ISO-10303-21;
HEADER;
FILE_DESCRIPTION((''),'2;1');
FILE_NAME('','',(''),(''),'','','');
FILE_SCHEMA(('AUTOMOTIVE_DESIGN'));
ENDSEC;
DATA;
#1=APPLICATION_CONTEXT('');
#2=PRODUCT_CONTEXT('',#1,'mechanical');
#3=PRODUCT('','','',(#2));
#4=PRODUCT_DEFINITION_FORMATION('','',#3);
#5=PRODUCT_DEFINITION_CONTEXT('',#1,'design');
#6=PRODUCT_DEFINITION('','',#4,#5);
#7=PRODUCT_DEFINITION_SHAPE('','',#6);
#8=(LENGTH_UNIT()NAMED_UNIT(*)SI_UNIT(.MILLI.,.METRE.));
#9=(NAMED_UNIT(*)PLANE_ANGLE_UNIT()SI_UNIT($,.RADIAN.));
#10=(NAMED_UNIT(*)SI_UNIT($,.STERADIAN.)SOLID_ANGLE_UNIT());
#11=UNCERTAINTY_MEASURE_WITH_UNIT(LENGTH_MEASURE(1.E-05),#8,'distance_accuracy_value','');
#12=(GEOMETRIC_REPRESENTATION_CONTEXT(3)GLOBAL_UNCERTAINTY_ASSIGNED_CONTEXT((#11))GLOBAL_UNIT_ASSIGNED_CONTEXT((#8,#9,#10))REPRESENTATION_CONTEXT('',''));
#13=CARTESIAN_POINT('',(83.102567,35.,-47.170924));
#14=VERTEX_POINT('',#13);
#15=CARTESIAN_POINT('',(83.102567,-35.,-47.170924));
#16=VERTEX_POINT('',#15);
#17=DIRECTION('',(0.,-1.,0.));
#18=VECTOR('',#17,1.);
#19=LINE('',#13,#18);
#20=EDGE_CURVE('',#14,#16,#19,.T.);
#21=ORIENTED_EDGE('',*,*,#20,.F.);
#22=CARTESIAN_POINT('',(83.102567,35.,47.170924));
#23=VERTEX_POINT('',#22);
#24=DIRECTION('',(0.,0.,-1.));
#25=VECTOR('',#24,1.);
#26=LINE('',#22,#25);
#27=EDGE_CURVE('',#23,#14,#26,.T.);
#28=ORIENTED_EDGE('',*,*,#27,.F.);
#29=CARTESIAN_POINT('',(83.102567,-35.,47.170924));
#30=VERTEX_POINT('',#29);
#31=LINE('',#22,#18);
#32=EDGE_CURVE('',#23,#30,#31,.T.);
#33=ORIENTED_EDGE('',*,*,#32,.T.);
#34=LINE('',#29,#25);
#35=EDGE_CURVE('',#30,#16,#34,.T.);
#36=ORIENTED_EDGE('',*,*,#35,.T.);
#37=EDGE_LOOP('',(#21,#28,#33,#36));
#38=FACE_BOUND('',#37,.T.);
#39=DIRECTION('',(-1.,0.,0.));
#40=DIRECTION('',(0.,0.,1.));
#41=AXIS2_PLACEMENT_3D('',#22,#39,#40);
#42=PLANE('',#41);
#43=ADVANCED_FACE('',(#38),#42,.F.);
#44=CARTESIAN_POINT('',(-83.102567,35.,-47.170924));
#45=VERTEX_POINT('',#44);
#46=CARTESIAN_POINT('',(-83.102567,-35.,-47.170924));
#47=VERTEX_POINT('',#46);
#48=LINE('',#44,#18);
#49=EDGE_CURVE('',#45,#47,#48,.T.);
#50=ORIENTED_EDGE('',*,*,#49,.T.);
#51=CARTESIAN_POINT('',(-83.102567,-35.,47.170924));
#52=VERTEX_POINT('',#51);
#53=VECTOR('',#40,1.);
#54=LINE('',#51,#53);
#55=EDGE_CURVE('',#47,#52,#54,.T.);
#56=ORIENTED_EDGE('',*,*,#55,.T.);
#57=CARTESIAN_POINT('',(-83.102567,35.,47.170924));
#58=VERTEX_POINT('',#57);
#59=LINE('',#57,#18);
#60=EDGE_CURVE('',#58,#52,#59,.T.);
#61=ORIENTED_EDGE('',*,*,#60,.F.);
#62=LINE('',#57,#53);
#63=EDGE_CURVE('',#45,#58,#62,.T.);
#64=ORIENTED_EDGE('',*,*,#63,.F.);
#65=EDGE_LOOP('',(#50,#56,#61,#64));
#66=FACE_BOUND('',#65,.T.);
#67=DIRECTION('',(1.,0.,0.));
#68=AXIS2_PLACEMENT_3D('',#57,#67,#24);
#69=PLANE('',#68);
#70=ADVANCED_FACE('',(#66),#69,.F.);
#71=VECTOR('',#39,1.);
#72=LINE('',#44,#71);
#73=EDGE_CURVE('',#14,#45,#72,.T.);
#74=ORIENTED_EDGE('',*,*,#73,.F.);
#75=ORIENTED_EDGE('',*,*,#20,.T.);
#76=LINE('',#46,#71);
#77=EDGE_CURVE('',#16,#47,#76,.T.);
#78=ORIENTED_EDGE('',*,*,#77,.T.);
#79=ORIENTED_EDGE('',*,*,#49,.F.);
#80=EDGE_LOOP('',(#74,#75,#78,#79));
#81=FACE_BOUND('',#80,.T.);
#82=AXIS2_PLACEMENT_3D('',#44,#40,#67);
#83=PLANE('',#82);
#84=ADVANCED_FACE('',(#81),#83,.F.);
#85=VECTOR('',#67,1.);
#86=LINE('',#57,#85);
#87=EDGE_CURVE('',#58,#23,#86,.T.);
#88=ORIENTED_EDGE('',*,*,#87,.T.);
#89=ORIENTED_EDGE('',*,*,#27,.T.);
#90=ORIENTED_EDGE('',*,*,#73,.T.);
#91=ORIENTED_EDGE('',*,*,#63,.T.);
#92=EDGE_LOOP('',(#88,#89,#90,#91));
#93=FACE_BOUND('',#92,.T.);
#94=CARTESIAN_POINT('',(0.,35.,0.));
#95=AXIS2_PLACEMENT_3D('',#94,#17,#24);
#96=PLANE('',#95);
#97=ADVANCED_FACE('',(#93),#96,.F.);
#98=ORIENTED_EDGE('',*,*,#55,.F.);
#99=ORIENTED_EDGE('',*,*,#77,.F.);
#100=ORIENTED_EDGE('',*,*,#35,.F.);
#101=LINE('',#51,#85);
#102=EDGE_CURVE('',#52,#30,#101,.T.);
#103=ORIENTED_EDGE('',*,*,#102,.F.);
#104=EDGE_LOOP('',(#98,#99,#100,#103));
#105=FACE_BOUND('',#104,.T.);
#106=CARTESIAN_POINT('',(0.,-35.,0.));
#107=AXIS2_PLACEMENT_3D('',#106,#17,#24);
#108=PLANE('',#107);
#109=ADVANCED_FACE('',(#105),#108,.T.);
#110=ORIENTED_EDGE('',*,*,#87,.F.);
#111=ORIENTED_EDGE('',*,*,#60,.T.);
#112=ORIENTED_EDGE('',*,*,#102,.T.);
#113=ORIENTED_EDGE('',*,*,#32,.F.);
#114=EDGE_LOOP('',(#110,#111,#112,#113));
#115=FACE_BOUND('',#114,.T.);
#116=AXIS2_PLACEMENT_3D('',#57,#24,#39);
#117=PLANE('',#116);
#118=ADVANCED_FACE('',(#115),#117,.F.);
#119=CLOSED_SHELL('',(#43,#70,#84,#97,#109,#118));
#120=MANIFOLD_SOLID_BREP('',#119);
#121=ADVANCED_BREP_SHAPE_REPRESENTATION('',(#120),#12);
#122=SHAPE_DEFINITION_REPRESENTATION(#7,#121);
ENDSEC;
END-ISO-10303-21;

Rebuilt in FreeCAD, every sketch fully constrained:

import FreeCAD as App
import Part
import Sketcher

V = App.Vector
Q = App.Units.Quantity

doc = App.newDocument("Part")
body = doc.addObject("PartDesign::Body", "Body")

sketch1 = body.newObject("Sketcher::SketchObject", "Sketch")
sketch1.AttachmentSupport = (doc.getObject("XZ_Plane"), [""])
sketch1.MapMode = "FlatFace"
sketch1.addGeometry(Part.LineSegment(V(-83, -47, 0), V(-83, 47, 0)), False)
sketch1.addGeometry(Part.LineSegment(V(-83, 47, 0), V(83, 47, 0)), False)
sketch1.addGeometry(Part.LineSegment(V(83, 47, 0), V(83, -47, 0)), False)
sketch1.addGeometry(Part.LineSegment(V(83, -47, 0), V(-83, -47, 0)), False)
sketch1.addConstraint(Sketcher.Constraint("Coincident", 0, 2, 1, 1))
sketch1.addConstraint(Sketcher.Constraint("Coincident", 1, 2, 2, 1))
sketch1.addConstraint(Sketcher.Constraint("Coincident", 2, 2, 3, 1))
sketch1.addConstraint(Sketcher.Constraint("Coincident", 3, 2, 0, 1))
sketch1.addConstraint(Sketcher.Constraint("Vertical", 0))
sketch1.addConstraint(Sketcher.Constraint("Horizontal", 1))
sketch1.addConstraint(Sketcher.Constraint("Vertical", 2))
sketch1.addConstraint(Sketcher.Constraint("Horizontal", 3))
sketch1.addConstraint(Sketcher.Constraint("Symmetric", 0, 2, 2, 2, -1, 1))
sketch1.addConstraint(Sketcher.Constraint("DistanceY", 0, 1, 0, 2, Q("94.341848 mm")))
sketch1.addConstraint(Sketcher.Constraint("DistanceX", 1, 1, 1, 2, Q("166.205133 mm")))
pad1 = body.newObject("PartDesign::Pad", "Pad")
pad1.Profile = sketch1
pad1.Length = 70
pad1.Midplane = True

doc.recompute()
